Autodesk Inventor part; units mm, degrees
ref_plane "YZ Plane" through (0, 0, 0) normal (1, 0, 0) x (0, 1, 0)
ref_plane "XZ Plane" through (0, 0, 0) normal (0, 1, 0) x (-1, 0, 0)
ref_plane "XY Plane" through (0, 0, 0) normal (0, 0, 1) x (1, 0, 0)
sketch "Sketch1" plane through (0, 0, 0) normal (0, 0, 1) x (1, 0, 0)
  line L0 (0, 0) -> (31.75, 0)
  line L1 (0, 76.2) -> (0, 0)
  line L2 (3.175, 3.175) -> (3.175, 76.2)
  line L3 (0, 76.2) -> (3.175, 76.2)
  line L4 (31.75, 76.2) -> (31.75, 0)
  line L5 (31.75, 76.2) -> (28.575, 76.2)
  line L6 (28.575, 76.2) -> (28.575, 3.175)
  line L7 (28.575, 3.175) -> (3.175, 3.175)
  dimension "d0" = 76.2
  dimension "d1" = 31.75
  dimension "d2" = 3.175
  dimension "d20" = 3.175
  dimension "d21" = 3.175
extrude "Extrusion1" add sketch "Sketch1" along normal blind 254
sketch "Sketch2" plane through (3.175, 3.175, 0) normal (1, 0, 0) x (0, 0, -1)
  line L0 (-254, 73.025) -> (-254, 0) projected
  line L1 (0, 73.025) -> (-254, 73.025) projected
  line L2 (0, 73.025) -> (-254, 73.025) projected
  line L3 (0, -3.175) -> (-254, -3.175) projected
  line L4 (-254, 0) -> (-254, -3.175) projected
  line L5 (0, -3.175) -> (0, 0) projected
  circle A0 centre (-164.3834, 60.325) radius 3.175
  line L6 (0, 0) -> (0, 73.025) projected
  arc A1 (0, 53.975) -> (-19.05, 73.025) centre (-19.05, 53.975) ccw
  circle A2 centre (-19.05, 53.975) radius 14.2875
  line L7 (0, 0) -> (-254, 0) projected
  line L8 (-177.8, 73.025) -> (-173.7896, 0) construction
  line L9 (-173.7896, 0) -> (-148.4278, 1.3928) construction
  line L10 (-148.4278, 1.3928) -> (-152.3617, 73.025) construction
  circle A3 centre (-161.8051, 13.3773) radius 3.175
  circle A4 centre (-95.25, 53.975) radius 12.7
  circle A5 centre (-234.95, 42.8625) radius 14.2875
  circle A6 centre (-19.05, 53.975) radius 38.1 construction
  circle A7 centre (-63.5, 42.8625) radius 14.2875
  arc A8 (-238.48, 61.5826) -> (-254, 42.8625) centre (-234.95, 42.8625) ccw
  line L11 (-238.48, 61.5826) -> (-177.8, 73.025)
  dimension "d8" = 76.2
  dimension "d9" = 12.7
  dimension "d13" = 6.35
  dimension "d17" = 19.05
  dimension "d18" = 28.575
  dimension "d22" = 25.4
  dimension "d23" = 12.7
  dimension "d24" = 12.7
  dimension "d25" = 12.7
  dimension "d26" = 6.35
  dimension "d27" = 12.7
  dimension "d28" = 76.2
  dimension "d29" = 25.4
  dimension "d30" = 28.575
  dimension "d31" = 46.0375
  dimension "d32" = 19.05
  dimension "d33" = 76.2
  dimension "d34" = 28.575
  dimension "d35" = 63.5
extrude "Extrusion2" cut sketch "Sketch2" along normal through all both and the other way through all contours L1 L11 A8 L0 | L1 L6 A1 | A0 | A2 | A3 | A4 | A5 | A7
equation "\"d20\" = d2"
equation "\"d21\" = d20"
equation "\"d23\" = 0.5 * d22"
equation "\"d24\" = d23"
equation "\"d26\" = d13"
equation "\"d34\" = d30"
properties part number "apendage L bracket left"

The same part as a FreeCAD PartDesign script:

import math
import FreeCAD as App
import Part
import Sketcher
Q = App.Units.Quantity


def add_polygon(sketch, points):
    """Adds a closed chain of lines whose ends are joined by coincident constraints."""
    first, n = sketch.GeometryCount, len(points)
    for a, b in zip(points, points[1:] + points[:1]):
        sketch.addGeometry(Part.LineSegment(App.Vector(*a, 0), App.Vector(*b, 0)), False)
    for i in range(n):
        sketch.addConstraint(Sketcher.Constraint("Coincident", first + i, 2, first + (i + 1) % n, 1))

doc = App.newDocument("Part")
params = doc.addObject("Spreadsheet::Sheet", "Params")
for row, (alias, value) in enumerate([
    ("sketch1_height", "3 in"),
    ("sketch1_width", "1.25 in"),
    ("sketch1_width2", "0.125 in"),
    ("pad1_length", "10 in"),
    ("sketch2_diameter", "1 in"),
    ("sketch2_diameter2", "0.25 in"),
    ("sketch2_height", "3 in"),
    ("sketch2_radius", "0.75 in"),
    ("sketch2_diameter3", "1.125 in"),
], start=1):
    params.set(f"A{row}", alias)
    params.set(f"B{row}", "=" + value)
    params.setAlias(f"B{row}", alias)

body = doc.addObject("PartDesign::Body", "Body")

# Sketch on XY plane
sketch1 = doc.addObject("Sketcher::SketchObject", "Sketch")
body.addObject(sketch1)
sketch1.AttachmentSupport = (doc.XY_Plane, [""])
sketch1.MapMode = "FlatFace"
add_polygon(sketch1, [(0, 76.2), (0, 0), (31.75, 0), (31.75, 76.2), (28.575, 76.2), (28.575, 3.175), (3.175, 3.175), (3.175, 76.2)])  # lines 0-7
sketch1.addConstraint([
    Sketcher.Constraint("Vertical", 0),
    Sketcher.Constraint("Horizontal", 1),
    Sketcher.Constraint("Vertical", 2),
    Sketcher.Constraint("Horizontal", 3),
    Sketcher.Constraint("Vertical", 4),
    Sketcher.Constraint("Horizontal", 5),
    Sketcher.Constraint("Vertical", 6),
    Sketcher.Constraint("Horizontal", 7),
    Sketcher.Constraint("Coincident", 0, 2, -1, 1),
    Sketcher.Constraint("Horizontal", 3, 2, 6, 2),
    Sketcher.Constraint("Equal", 3, 7),
    Sketcher.Constraint("DistanceY", 0, 2, 0, 1, Q("3 in")),
    Sketcher.Constraint("DistanceX", 1, 1, 1, 2, Q("1.25 in")),
    Sketcher.Constraint("DistanceX", 3, 2, 3, 1, Q("0.125 in")),
    Sketcher.Constraint("DistanceY", -1, 1, 4, 2, Q("0.125 in")),
])
sketch1.setExpression("Constraints[19]", "Params.sketch1_height")
sketch1.setExpression("Constraints[20]", "Params.sketch1_width")
sketch1.setExpression("Constraints[21]", "Params.sketch1_width2")
pad1 = doc.addObject("PartDesign::Pad", "Pad")
body.addObject(pad1)
pad1.Profile = sketch1
pad1.setExpression("Length", "Params.pad1_length")

# Sketch on YZ plane
sketch2 = doc.addObject("Sketcher::SketchObject", "Sketch001")
body.addObject(sketch2)
sketch2.AttachmentSupport = (doc.YZ_Plane, [""])
sketch2.MapMode = "FlatFace"
sketch2.AttachmentOffset = App.Placement(App.Vector(0, 0, 0.125 * 25.4), App.Rotation())
sketch2.addGeometry([
    Part.LineSegment(App.Vector(76.2, 177.8, 0), App.Vector(76.2, 254, 0)),  # 0
    Part.LineSegment(App.Vector(76.2, 254, 0), App.Vector(46.0375, 254, 0)),  # 1
    Part.ArcOfCircle(Part.Circle(App.Vector(46.0375, 234.95, 0), App.Vector(0, 0, 1), 19.050014), math.radians(10.678723), math.radians(90)),  # 2
    Part.LineSegment(App.Vector(64.7576, 238.48, 0), App.Vector(76.2, 177.8, 0)),  # 3
    Part.LineSegment(App.Vector(76.2, 0, 0), App.Vector(76.2, 19.05, 0)),  # 4
    Part.ArcOfCircle(Part.Circle(App.Vector(57.15, 19.05, 0), App.Vector(0, 0, 1), 19.05), math.radians(-90), math.radians(0)),  # 5
    Part.LineSegment(App.Vector(57.15, 0, 0), App.Vector(76.2, 0, 0)),  # 6
    Part.Circle(App.Vector(63.5, 164.3834, 0), App.Vector(0, 0, 1), 3.175),  # 7
    Part.Circle(App.Vector(57.15, 19.05, 0), App.Vector(0, 0, 1), 14.2875),  # 8
    Part.Circle(App.Vector(16.5523, 161.8051, 0), App.Vector(0, 0, 1), 3.175),  # 9
    Part.Circle(App.Vector(57.15, 95.25, 0), App.Vector(0, 0, 1), 12.7),  # 10
    Part.Circle(App.Vector(46.0375, 234.95, 0), App.Vector(0, 0, 1), 14.2875),  # 11
    Part.Circle(App.Vector(46.0375, 63.5, 0), App.Vector(0, 0, 1), 14.2875),  # 12
], False)
sketch2.addConstraint([
    Sketcher.Constraint("Coincident", 0, 2, 1, 1),
    Sketcher.Constraint("Tangent", 1, 2, 2, 2),
    Sketcher.Constraint("Tangent", 2, 1, 3, 1),
    Sketcher.Constraint("Coincident", 3, 2, 0, 1),
    Sketcher.Constraint("Tangent", 4, 2, 5, 2),
    Sketcher.Constraint("Tangent", 5, 1, 6, 1),
    Sketcher.Constraint("Coincident", 6, 2, 4, 1),
    Sketcher.Constraint("Vertical", 0),
    Sketcher.Constraint("Horizontal", 1),
    Sketcher.Constraint("Vertical", 4),
    Sketcher.Constraint("Horizontal", 6),
    Sketcher.Constraint("Coincident", 8, 3, 5, 3),
    Sketcher.Constraint("Coincident", 11, 3, 2, 3),
    Sketcher.Constraint("Equal", 2, 5),
    Sketcher.Constraint("Equal", 7, 9),
    Sketcher.Constraint("Equal", 8, 11),
    Sketcher.Constraint("Equal", 11, 12),
    Sketcher.Constraint("PointOnObject", 5, 1, -1),
    Sketcher.Constraint("Vertical", 8, 3, 10, 3),
    Sketcher.Constraint("Vertical", 11, 3, 12, 3),
    Sketcher.Constraint("Vertical", 3, 2, 4, 2),
    Sketcher.Constraint("Diameter", 10, Q("1 in")),
    Sketcher.Constraint("Diameter", 7, Q("0.25 in")),
    Sketcher.Constraint("DistanceY", 0, 1, 0, 2, Q("3 in")),
    Sketcher.Constraint("Radius", 2, Q("0.75 in")),
    Sketcher.Constraint("Diameter", 8, Q("1.125 in")),
    Sketcher.Constraint("DistanceX", -1, 1, 0, 2, Q("3 in")),
    Sketcher.Constraint("DistanceY", 5, 3, 10, 3, Q("3 in")),
    Sketcher.Constraint("DistanceX", -1, 1, 7, 3, Q("2.5 in")),
    Sketcher.Constraint("DistanceY", -1, 1, 12, 3, Q("2.5 in")),
    Sketcher.Constraint("DistanceX", -1, 1, 2, 3, Q("1.8125 in")),
    Sketcher.Constraint("DistanceY", -1, 1, 0, 2, Q("10 in")),
    Sketcher.Constraint("DistanceY", 9, 3, 7, 3, Q("0.1015 in")),
    Sketcher.Constraint("DistanceY", 7, 3, 2, 1, Q("2.9172 in")),
    Sketcher.Constraint("DistanceX", -1, 1, 9, 3, 16.5523),
])
sketch2.setExpression("Constraints[21]", "Params.sketch2_diameter")
sketch2.setExpression("Constraints[22]", "Params.sketch2_diameter2")
sketch2.setExpression("Constraints[23]", "Params.sketch2_height")
sketch2.setExpression("Constraints[24]", "Params.sketch2_radius")
sketch2.setExpression("Constraints[25]", "Params.sketch2_diameter3")
pocket1 = doc.addObject("PartDesign::Pocket", "Pocket")
body.addObject(pocket1)
pocket1.Profile = sketch2
pocket1.Type = "ThroughAll"
pocket1.Midplane = True

doc.recompute()
